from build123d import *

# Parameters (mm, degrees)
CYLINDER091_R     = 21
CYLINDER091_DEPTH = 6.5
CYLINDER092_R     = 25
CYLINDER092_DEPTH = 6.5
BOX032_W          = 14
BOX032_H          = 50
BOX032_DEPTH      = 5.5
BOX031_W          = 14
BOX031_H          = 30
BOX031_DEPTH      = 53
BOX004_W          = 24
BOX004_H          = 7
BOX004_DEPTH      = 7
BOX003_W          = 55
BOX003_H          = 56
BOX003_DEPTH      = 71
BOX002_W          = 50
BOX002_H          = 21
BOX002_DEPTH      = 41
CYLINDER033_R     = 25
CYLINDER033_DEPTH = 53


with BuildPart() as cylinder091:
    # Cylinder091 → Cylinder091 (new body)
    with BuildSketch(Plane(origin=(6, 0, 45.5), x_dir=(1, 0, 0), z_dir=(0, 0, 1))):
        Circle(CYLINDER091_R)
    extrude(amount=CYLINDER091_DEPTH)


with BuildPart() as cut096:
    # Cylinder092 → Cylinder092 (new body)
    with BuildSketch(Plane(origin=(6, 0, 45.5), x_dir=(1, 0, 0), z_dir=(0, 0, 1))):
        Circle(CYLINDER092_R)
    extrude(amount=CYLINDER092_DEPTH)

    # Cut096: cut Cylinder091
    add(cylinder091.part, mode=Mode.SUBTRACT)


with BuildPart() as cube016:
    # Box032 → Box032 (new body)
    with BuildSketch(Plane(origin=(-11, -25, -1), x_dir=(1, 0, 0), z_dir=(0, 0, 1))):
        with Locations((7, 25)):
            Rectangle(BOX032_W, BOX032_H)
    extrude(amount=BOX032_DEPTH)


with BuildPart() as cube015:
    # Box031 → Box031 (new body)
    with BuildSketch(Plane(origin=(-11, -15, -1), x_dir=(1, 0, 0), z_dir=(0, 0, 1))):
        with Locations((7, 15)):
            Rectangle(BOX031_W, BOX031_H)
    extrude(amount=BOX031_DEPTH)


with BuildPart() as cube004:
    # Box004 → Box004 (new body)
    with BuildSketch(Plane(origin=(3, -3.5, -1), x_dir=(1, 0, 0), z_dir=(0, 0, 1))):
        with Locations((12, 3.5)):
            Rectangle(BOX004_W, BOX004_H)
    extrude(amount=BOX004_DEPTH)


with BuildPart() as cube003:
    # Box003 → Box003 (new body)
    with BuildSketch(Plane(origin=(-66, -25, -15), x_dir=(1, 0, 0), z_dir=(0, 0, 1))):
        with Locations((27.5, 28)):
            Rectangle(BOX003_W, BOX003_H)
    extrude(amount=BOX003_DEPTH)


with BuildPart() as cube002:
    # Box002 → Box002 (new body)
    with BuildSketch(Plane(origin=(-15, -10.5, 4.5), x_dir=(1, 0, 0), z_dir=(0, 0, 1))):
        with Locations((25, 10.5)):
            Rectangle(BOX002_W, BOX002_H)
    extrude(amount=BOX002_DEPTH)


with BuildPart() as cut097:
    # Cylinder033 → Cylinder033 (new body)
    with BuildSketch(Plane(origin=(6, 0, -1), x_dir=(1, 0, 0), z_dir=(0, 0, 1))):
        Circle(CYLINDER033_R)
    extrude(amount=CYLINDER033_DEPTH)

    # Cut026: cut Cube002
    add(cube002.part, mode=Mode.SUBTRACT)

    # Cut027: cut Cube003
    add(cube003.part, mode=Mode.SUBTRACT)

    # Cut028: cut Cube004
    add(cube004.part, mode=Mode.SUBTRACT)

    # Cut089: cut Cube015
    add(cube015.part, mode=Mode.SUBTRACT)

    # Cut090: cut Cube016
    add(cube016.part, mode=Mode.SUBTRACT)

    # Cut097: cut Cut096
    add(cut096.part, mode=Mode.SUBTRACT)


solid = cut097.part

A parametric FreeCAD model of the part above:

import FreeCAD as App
import Part
import Sketcher
from FreeCAD import Vector
Q = App.Units.Quantity

doc = App.newDocument("Part")
body = doc.addObject("PartDesign::Body", "Body")

# Sketch on XY plane
sketch1 = body.newObject("Sketcher::SketchObject", "Sketch")
sketch1.AttachmentSupport = (doc.getObject("XY_Plane"), [""])
sketch1.MapMode = "FlatFace"
sketch1.AttachmentOffset = App.Placement(Vector(0, 0, 45.5), App.Rotation())
sketch1.addGeometry(Part.Circle(Vector(6, 0, 0), Vector(0, 0, 1), 21), False)
sketch1.addConstraint(Sketcher.Constraint("PointOnObject", 0, 3, -1))
sketch1.addConstraint(Sketcher.Constraint("Diameter", 0, Q("42 mm")))
sketch1.addConstraint(Sketcher.Constraint("DistanceX", -1, 1, 0, 3, Q("6 mm")))
pad1 = body.newObject("PartDesign::Pad", "Pad")
pad1.Profile = sketch1
pad1.Length = 6.5
body2 = doc.addObject("PartDesign::Body", "Body001")

# Sketch on XY plane
sketch2 = body2.newObject("Sketcher::SketchObject", "Sketch001")
sketch2.AttachmentSupport = (doc.getObject("XY_Plane001"), [""])
sketch2.MapMode = "FlatFace"
sketch2.AttachmentOffset = App.Placement(Vector(0, 0, 45.5), App.Rotation())
sketch2.addGeometry(Part.Circle(Vector(6, 0, 0), Vector(0, 0, 1), 25), False)
sketch2.addConstraint(Sketcher.Constraint("PointOnObject", 0, 3, -1))
sketch2.addConstraint(Sketcher.Constraint("Diameter", 0, Q("50 mm")))
sketch2.addConstraint(Sketcher.Constraint("DistanceX", -1, 1, 0, 3, Q("6 mm")))
pad2 = body2.newObject("PartDesign::Pad", "Pad001")
pad2.Profile = sketch2
pad2.Length = 6.5
doc.recompute()

boolean = body2.newObject("PartDesign::Boolean", "Boolean")
boolean.Type = "Cut"
boolean.addObjects([body])
body3 = doc.addObject("PartDesign::Body", "Body002")

# Sketch on XY plane
sketch3 = body3.newObject("Sketcher::SketchObject", "Sketch002")
sketch3.AttachmentSupport = (doc.getObject("XY_Plane002"), [""])
sketch3.MapMode = "FlatFace"
sketch3.AttachmentOffset = App.Placement(Vector(0, 0, -1), App.Rotation())
sketch3.addGeometry(Part.LineSegment(Vector(-11, 25, 0), Vector(-11, -25, 0)), False)
sketch3.addGeometry(Part.LineSegment(Vector(-11, -25, 0), Vector(3, -25, 0)), False)
sketch3.addGeometry(Part.LineSegment(Vector(3, -25, 0), Vector(3, 25, 0)), False)
sketch3.addGeometry(Part.LineSegment(Vector(3, 25, 0), Vector(-11, 25, 0)), False)
sketch3.addConstraint(Sketcher.Constraint("Coincident", 0, 2, 1, 1))
sketch3.addConstraint(Sketcher.Constraint("Coincident", 1, 2, 2, 1))
sketch3.addConstraint(Sketcher.Constraint("Coincident", 2, 2, 3, 1))
sketch3.addConstraint(Sketcher.Constraint("Coincident", 3, 2, 0, 1))
sketch3.addConstraint(Sketcher.Constraint("Vertical", 0))
sketch3.addConstraint(Sketcher.Constraint("Horizontal", 1))
sketch3.addConstraint(Sketcher.Constraint("Vertical", 2))
sketch3.addConstraint(Sketcher.Constraint("Horizontal", 3))
sketch3.addConstraint(Sketcher.Constraint("DistanceX", 1, 1, 1, 2, Q("14 mm")))
sketch3.addConstraint(Sketcher.Constraint("DistanceY", 0, 2, 0, 1, Q("50 mm")))
sketch3.addConstraint(Sketcher.Constraint("DistanceX", 0, 2, -1, 1, Q("11 mm")))
sketch3.addConstraint(Sketcher.Constraint("DistanceY", 0, 2, -1, 1, Q("25 mm")))
pad3 = body3.newObject("PartDesign::Pad", "Pad002")
pad3.Profile = sketch3
pad3.Length = 5.5
body4 = doc.addObject("PartDesign::Body", "Body003")

# Sketch on XY plane
sketch4 = body4.newObject("Sketcher::SketchObject", "Sketch003")
sketch4.AttachmentSupport = (doc.getObject("XY_Plane003"), [""])
sketch4.MapMode = "FlatFace"
sketch4.AttachmentOffset = App.Placement(Vector(0, 0, -1), App.Rotation())
sketch4.addGeometry(Part.LineSegment(Vector(-11, 15, 0), Vector(-11, -15, 0)), False)
sketch4.addGeometry(Part.LineSegment(Vector(-11, -15, 0), Vector(3, -15, 0)), False)
sketch4.addGeometry(Part.LineSegment(Vector(3, -15, 0), Vector(3, 15, 0)), False)
sketch4.addGeometry(Part.LineSegment(Vector(3, 15, 0), Vector(-11, 15, 0)), False)
sketch4.addConstraint(Sketcher.Constraint("Coincident", 0, 2, 1, 1))
sketch4.addConstraint(Sketcher.Constraint("Coincident", 1, 2, 2, 1))
sketch4.addConstraint(Sketcher.Constraint("Coincident", 2, 2, 3, 1))
sketch4.addConstraint(Sketcher.Constraint("Coincident", 3, 2, 0, 1))
sketch4.addConstraint(Sketcher.Constraint("Vertical", 0))
sketch4.addConstraint(Sketcher.Constraint("Horizontal", 1))
sketch4.addConstraint(Sketcher.Constraint("Vertical", 2))
sketch4.addConstraint(Sketcher.Constraint("Horizontal", 3))
sketch4.addConstraint(Sketcher.Constraint("DistanceX", 1, 1, 1, 2, Q("14 mm")))
sketch4.addConstraint(Sketcher.Constraint("DistanceY", 0, 2, 0, 1, Q("30 mm")))
sketch4.addConstraint(Sketcher.Constraint("DistanceX", 0, 2, -1, 1, Q("11 mm")))
sketch4.addConstraint(Sketcher.Constraint("DistanceY", 0, 2, -1, 1, Q("15 mm")))
pad4 = body4.newObject("PartDesign::Pad", "Pad003")
pad4.Profile = sketch4
pad4.Length = 53
body5 = doc.addObject("PartDesign::Body", "Body004")

# Sketch on XY plane
sketch5 = body5.newObject("Sketcher::SketchObject", "Sketch004")
sketch5.AttachmentSupport = (doc.getObject("XY_Plane004"), [""])
sketch5.MapMode = "FlatFace"
sketch5.AttachmentOffset = App.Placement(Vector(0, 0, -1), App.Rotation())
sketch5.addGeometry(Part.LineSegment(Vector(3, 4, 0), Vector(3, -4, 0)), False)
sketch5.addGeometry(Part.LineSegment(Vector(3, -4, 0), Vector(27, -4, 0)), False)
sketch5.addGeometry(Part.LineSegment(Vector(27, -4, 0), Vector(27, 4, 0)), False)
sketch5.addGeometry(Part.LineSegment(Vector(27, 4, 0), Vector(3, 4, 0)), False)
sketch5.addConstraint(Sketcher.Constraint("Coincident", 0, 2, 1, 1))
sketch5.addConstraint(Sketcher.Constraint("Coincident", 1, 2, 2, 1))
sketch5.addConstraint(Sketcher.Constraint("Coincident", 2, 2, 3, 1))
sketch5.addConstraint(Sketcher.Constraint("Coincident", 3, 2, 0, 1))
sketch5.addConstraint(Sketcher.Constraint("Vertical", 0))
sketch5.addConstraint(Sketcher.Constraint("Horizontal", 1))
sketch5.addConstraint(Sketcher.Constraint("Vertical", 2))
sketch5.addConstraint(Sketcher.Constraint("Horizontal", 3))
sketch5.addConstraint(Sketcher.Constraint("DistanceX", 1, 1, 1, 2, Q("24 mm")))
sketch5.addConstraint(Sketcher.Constraint("DistanceY", 0, 2, 0, 1, Q("7 mm")))
sketch5.addConstraint(Sketcher.Constraint("DistanceX", -1, 1, 0, 2, Q("3 mm")))
sketch5.addConstraint(Sketcher.Constraint("DistanceY", 0, 2, -1, 1, Q("3.5 mm")))
pad5 = body5.newObject("PartDesign::Pad", "Pad004")
pad5.Profile = sketch5
pad5.Length = 7
body6 = doc.addObject("PartDesign::Body", "Body005")

# Sketch on XY plane
sketch6 = body6.newObject("Sketcher::SketchObject", "Sketch005")
sketch6.AttachmentSupport = (doc.getObject("XY_Plane005"), [""])
sketch6.MapMode = "FlatFace"
sketch6.AttachmentOffset = App.Placement(Vector(0, 0, -15), App.Rotation())
sketch6.addGeometry(Part.LineSegment(Vector(-66, 31, 0), Vector(-66, -25, 0)), False)
sketch6.addGeometry(Part.LineSegment(Vector(-66, -25, 0), Vector(-11, -25, 0)), False)
sketch6.addGeometry(Part.LineSegment(Vector(-11, -25, 0), Vector(-11, 31, 0)), False)
sketch6.addGeometry(Part.LineSegment(Vector(-11, 31, 0), Vector(-66, 31, 0)), False)
sketch6.addConstraint(Sketcher.Constraint("Coincident", 0, 2, 1, 1))
sketch6.addConstraint(Sketcher.Constraint("Coincident", 1, 2, 2, 1))
sketch6.addConstraint(Sketcher.Constraint("Coincident", 2, 2, 3, 1))
sketch6.addConstraint(Sketcher.Constraint("Coincident", 3, 2, 0, 1))
sketch6.addConstraint(Sketcher.Constraint("Vertical", 0))
sketch6.addConstraint(Sketcher.Constraint("Horizontal", 1))
sketch6.addConstraint(Sketcher.Constraint("Vertical", 2))
sketch6.addConstraint(Sketcher.Constraint("Horizontal", 3))
sketch6.addConstraint(Sketcher.Constraint("DistanceX", 1, 1, 1, 2, Q("55 mm")))
sketch6.addConstraint(Sketcher.Constraint("DistanceY", 0, 2, 0, 1, Q("56 mm")))
sketch6.addConstraint(Sketcher.Constraint("DistanceX", 0, 2, -1, 1, Q("66 mm")))
sketch6.addConstraint(Sketcher.Constraint("DistanceY", 0, 2, -1, 1, Q("25 mm")))
pad6 = body6.newObject("PartDesign::Pad", "Pad005")
pad6.Profile = sketch6
pad6.Length = 71
body7 = doc.addObject("PartDesign::Body", "Body006")

# Sketch on XY plane
sketch7 = body7.newObject("Sketcher::SketchObject", "Sketch006")
sketch7.AttachmentSupport = (doc.getObject("XY_Plane006"), [""])
sketch7.MapMode = "FlatFace"
sketch7.AttachmentOffset = App.Placement(Vector(0, 0, 4.5), App.Rotation())
sketch7.addGeometry(Part.LineSegment(Vector(-15, 10, 0), Vector(-15, -10, 0)), False)
sketch7.addGeometry(Part.LineSegment(Vector(-15, -10, 0), Vector(35, -10, 0)), False)
sketch7.addGeometry(Part.LineSegment(Vector(35, -10, 0), Vector(35, 10, 0)), False)
sketch7.addGeometry(Part.LineSegment(Vector(35, 10, 0), Vector(-15, 10, 0)), False)
sketch7.addConstraint(Sketcher.Constraint("Coincident", 0, 2, 1, 1))
sketch7.addConstraint(Sketcher.Constraint("Coincident", 1, 2, 2, 1))
sketch7.addConstraint(Sketcher.Constraint("Coincident", 2, 2, 3, 1))
sketch7.addConstraint(Sketcher.Constraint("Coincident", 3, 2, 0, 1))
sketch7.addConstraint(Sketcher.Constraint("Vertical", 0))
sketch7.addConstraint(Sketcher.Constraint("Horizontal", 1))
sketch7.addConstraint(Sketcher.Constraint("Vertical", 2))
sketch7.addConstraint(Sketcher.Constraint("Horizontal", 3))
sketch7.addConstraint(Sketcher.Constraint("DistanceX", 1, 1, 1, 2, Q("50 mm")))
sketch7.addConstraint(Sketcher.Constraint("DistanceY", 0, 2, 0, 1, Q("21 mm")))
sketch7.addConstraint(Sketcher.Constraint("DistanceX", 0, 2, -1, 1, Q("15 mm")))
sketch7.addConstraint(Sketcher.Constraint("DistanceY", 0, 2, -1, 1, Q("10.5 mm")))
pad7 = body7.newObject("PartDesign::Pad", "Pad006")
pad7.Profile = sketch7
pad7.Length = 41
body8 = doc.addObject("PartDesign::Body", "Body007")

# Sketch on XY plane
sketch8 = body8.newObject("Sketcher::SketchObject", "Sketch007")
sketch8.AttachmentSupport = (doc.getObject("XY_Plane007"), [""])
sketch8.MapMode = "FlatFace"
sketch8.AttachmentOffset = App.Placement(Vector(0, 0, -1), App.Rotation())
sketch8.addGeometry(Part.Circle(Vector(6, 0, 0), Vector(0, 0, 1), 25), False)
sketch8.addConstraint(Sketcher.Constraint("PointOnObject", 0, 3, -1))
sketch8.addConstraint(Sketcher.Constraint("Diameter", 0, Q("50 mm")))
sketch8.addConstraint(Sketcher.Constraint("DistanceX", -1, 1, 0, 3, Q("6 mm")))
pad8 = body8.newObject("PartDesign::Pad", "Pad007")
pad8.Profile = sketch8
pad8.Length = 53
doc.recompute()

boolean2 = body8.newObject("PartDesign::Boolean", "Boolean001")
boolean2.Type = "Cut"
boolean2.addObjects([body7])
doc.recompute()

boolean3 = body8.newObject("PartDesign::Boolean", "Boolean002")
boolean3.Type = "Cut"
boolean3.addObjects([body6])
doc.recompute()

boolean4 = body8.newObject("PartDesign::Boolean", "Boolean003")
boolean4.Type = "Cut"
boolean4.addObjects([body5])
doc.recompute()

boolean5 = body8.newObject("PartDesign::Boolean", "Boolean004")
boolean5.Type = "Cut"
boolean5.addObjects([body4])
doc.recompute()

boolean6 = body8.newObject("PartDesign::Boolean", "Boolean005")
boolean6.Type = "Cut"
boolean6.addObjects([body3])
doc.recompute()

boolean7 = body8.newObject("PartDesign::Boolean", "Boolean006")
boolean7.Type = "Cut"
boolean7.addObjects([body2])

doc.recompute()
